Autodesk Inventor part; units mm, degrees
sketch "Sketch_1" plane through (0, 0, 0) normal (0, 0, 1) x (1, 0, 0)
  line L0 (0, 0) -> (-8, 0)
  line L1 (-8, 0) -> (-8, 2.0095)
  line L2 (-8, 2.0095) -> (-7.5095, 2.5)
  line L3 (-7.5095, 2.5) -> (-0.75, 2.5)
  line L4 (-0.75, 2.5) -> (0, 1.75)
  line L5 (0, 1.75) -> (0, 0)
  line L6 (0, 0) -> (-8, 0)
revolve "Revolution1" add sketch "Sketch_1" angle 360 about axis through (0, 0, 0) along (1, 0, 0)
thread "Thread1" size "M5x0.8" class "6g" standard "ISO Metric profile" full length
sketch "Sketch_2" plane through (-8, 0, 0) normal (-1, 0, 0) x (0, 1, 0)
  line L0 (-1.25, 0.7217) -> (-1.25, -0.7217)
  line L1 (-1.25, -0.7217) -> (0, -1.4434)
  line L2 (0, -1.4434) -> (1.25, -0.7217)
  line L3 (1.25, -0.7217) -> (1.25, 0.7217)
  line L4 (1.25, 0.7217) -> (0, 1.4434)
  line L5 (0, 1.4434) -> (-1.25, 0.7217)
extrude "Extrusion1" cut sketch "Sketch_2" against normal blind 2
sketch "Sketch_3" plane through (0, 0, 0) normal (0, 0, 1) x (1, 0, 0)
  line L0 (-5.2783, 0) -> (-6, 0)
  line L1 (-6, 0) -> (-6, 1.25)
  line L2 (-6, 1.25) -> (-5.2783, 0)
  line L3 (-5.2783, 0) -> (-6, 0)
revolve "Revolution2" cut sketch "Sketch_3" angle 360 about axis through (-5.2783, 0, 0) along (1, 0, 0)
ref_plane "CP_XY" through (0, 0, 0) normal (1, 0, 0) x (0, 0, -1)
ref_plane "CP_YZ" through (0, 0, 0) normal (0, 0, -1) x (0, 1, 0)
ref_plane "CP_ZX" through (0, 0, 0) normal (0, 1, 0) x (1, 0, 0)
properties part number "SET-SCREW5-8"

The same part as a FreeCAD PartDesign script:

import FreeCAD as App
import Part
import Sketcher

V = App.Vector
Q = App.Units.Quantity


def add_polygon(sketch, points):
    """Adds a closed chain of lines whose ends are joined by coincident constraints."""
    first, n = sketch.GeometryCount, len(points)
    for a, b in zip(points, points[1:] + points[:1]):
        sketch.addGeometry(Part.LineSegment(App.Vector(*a, 0), App.Vector(*b, 0)), False)
    for i in range(n):
        sketch.addConstraint(Sketcher.Constraint("Coincident", first + i, 2, first + (i + 1) % n, 1))

doc = App.newDocument("Part")
params = doc.addObject("Spreadsheet::Sheet", "Params")
for row, (alias, value) in enumerate([
    ("sketch1_width", "8 mm"),
    ("sketch1_height", "1.75 mm"),
    ("revolution_angle", "360 deg"),
    ("pocket1_length", "2 mm"),
    ("sketch3_height", "1.25 mm"),
    ("groove_angle", "360 deg"),
], start=1):
    params.set(f"A{row}", alias)
    params.set(f"B{row}", "=" + value)
    params.setAlias(f"B{row}", alias)

body = doc.addObject("PartDesign::Body", "Body")

# Sketch on XY plane
sketch1 = body.newObject("Sketcher::SketchObject", "Sketch")
sketch1.AttachmentSupport = (doc.getObject("XY_Plane"), [""])
sketch1.MapMode = "FlatFace"
add_polygon(sketch1, [(-8, 0), (0, 0), (0, 1.8), (-0.8, 2.5), (-7.5, 2.5), (-8, 2)])  # lines 0-5
sketch1.addConstraint([
    Sketcher.Constraint("Horizontal", 0),
    Sketcher.Constraint("Vertical", 1),
    Sketcher.Constraint("Horizontal", 3),
    Sketcher.Constraint("Vertical", 5),
    Sketcher.Constraint("Coincident", 0, 2, -1, 1),
    Sketcher.Constraint("Perpendicular", 2, 4),
    Sketcher.Constraint("DistanceX", 0, 1, 0, 2, Q("8 mm")),
    Sketcher.Constraint("Angle", 2, Q("135 deg")),
    Sketcher.Constraint("DistanceY", 1, 1, 1, 2, Q("1.75 mm")),
    Sketcher.Constraint("DistanceY", -1, 1, 2, 2, Q("2.5 mm")),
    Sketcher.Constraint("DistanceX", 3, 2, 3, 1, Q("6.7595 mm")),
])
sketch1.setExpression("Constraints[12]", "Params.sketch1_width")
sketch1.setExpression("Constraints[14]", "Params.sketch1_height")
revolution = body.newObject("PartDesign::Revolution", "Revolution")
revolution.Profile = sketch1
revolution.ReferenceAxis = (sketch1, ["H_Axis"])
revolution.setExpression("Angle", "Params.revolution_angle")

# Sketch on YZ plane
sketch2 = body.newObject("Sketcher::SketchObject", "Sketch001")
sketch2.AttachmentSupport = (doc.getObject("YZ_Plane"), [""])
sketch2.MapMode = "FlatFace"
sketch2.AttachmentOffset = App.Placement(V(0, 0, -8), App.Rotation())
add_polygon(sketch2, [(0, -1.4), (-1.2, -0.7), (-1.2, 0.7), (0, 1.4), (1.2, 0.7), (1.2, -0.7)])  # lines 0-5
sketch2.addConstraint([
    Sketcher.Constraint("Vertical", 1),
    Sketcher.Constraint("Vertical", 4),
    Sketcher.Constraint("Symmetric", 0, 2, 3, 2, -1, 1),
    Sketcher.Constraint("Symmetric", 2, 2, 5, 2, -1, 1),
    Sketcher.Constraint("PointOnObject", 2, 2, -2),
    Sketcher.Constraint("Parallel", 2, 5),
    Sketcher.Constraint("Horizontal", 1, 2, 3, 2),
    Sketcher.Constraint("Angle", 0, Q("149.9996 deg")),
    Sketcher.Constraint("DistanceX", 1, 2, 3, 2, Q("2.5 mm")),
    Sketcher.Constraint("DistanceY", 1, 1, 1, 2, Q("1.4434 mm")),
])
pocket1 = body.newObject("PartDesign::Pocket", "Pocket")
pocket1.Profile = sketch2
pocket1.setExpression("Length", "Params.pocket1_length")
pocket1.Reversed = True

# Sketch on XY plane
sketch3 = body.newObject("Sketcher::SketchObject", "Sketch002")
sketch3.AttachmentSupport = (doc.getObject("XY_Plane"), [""])
sketch3.MapMode = "FlatFace"
add_polygon(sketch3, [(-6, 0), (-5.3, 0), (-6, 1.2)])  # lines 0-2
sketch3.addConstraint([
    Sketcher.Constraint("Horizontal", 0),
    Sketcher.Constraint("Vertical", 2),
    Sketcher.Constraint("PointOnObject", 0, 2, -1),
    Sketcher.Constraint("Angle", 1, Q("120.0004 deg")),
    Sketcher.Constraint("DistanceX", 1, 2, -1, 1, Q("6 mm")),
    Sketcher.Constraint("DistanceY", 2, 2, 2, 1, Q("1.25 mm")),
])
sketch3.setExpression("Constraints[8]", "Params.sketch3_height")
groove = body.newObject("PartDesign::Groove", "Groove")
groove.Profile = sketch3
groove.ReferenceAxis = (sketch3, ["H_Axis"])
groove.setExpression("Angle", "Params.groove_angle")

doc.recompute()
